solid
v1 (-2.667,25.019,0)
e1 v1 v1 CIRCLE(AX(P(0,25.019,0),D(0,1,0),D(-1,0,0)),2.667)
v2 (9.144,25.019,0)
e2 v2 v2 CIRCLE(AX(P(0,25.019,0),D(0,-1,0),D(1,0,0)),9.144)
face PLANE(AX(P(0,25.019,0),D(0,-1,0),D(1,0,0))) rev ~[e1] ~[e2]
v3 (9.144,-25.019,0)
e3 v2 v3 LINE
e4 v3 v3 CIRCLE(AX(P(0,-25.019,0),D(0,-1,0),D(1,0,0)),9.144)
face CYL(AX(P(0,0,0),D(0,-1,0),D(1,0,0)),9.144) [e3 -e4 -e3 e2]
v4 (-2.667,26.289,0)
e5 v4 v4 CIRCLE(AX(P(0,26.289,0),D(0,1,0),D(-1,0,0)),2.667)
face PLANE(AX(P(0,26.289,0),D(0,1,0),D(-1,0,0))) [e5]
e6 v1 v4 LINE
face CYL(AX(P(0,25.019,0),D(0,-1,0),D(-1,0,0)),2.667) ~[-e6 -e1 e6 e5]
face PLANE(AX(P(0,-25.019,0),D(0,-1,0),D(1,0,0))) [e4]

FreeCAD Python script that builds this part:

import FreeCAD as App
import Part
import Sketcher
Q = App.Units.Quantity

doc = App.newDocument("Part")
body = doc.addObject("PartDesign::Body", "Body")

# Sketch on XZ plane
sketch1 = body.newObject("Sketcher::SketchObject", "Sketch")
sketch1.AttachmentSupport = (doc.getObject("XZ_Plane"), [""])
sketch1.MapMode = "FlatFace"
sketch1.addGeometry(Part.Circle(App.Vector(0, 0, 0), App.Vector(0, 0, 1), 9), False)
sketch1.addConstraint([
    Sketcher.Constraint("Coincident", 0, 3, -1, 1),
    Sketcher.Constraint("Diameter", 0, Q("0.72 in")),
])
pad1 = body.newObject("PartDesign::Pad", "Pad")
pad1.Profile = sketch1
pad1.Type = "TwoLengths"
pad1.Length = Q("0.985 in")
pad1.Length2 = Q("0.985 in")

# Sketch on XZ plane
sketch2 = body.newObject("Sketcher::SketchObject", "Sketch001")
sketch2.AttachmentSupport = (doc.getObject("XZ_Plane"), [""])
sketch2.MapMode = "FlatFace"
sketch2.AttachmentOffset = App.Placement(App.Vector(0, 0, -0.985 * 25.4), App.Rotation())
sketch2.addGeometry(Part.Circle(App.Vector(0, 0, 0), App.Vector(0, 0, 1), 2.7), False)
sketch2.addConstraint([
    Sketcher.Constraint("Coincident", 0, 3, -1, 1),
    Sketcher.Constraint("Diameter", 0, Q("0.21 in")),
])
pad2 = body.newObject("PartDesign::Pad", "Pad001")
pad2.Profile = sketch2
pad2.Length = Q("0.05 in")
pad2.Reversed = True

doc.recompute()
